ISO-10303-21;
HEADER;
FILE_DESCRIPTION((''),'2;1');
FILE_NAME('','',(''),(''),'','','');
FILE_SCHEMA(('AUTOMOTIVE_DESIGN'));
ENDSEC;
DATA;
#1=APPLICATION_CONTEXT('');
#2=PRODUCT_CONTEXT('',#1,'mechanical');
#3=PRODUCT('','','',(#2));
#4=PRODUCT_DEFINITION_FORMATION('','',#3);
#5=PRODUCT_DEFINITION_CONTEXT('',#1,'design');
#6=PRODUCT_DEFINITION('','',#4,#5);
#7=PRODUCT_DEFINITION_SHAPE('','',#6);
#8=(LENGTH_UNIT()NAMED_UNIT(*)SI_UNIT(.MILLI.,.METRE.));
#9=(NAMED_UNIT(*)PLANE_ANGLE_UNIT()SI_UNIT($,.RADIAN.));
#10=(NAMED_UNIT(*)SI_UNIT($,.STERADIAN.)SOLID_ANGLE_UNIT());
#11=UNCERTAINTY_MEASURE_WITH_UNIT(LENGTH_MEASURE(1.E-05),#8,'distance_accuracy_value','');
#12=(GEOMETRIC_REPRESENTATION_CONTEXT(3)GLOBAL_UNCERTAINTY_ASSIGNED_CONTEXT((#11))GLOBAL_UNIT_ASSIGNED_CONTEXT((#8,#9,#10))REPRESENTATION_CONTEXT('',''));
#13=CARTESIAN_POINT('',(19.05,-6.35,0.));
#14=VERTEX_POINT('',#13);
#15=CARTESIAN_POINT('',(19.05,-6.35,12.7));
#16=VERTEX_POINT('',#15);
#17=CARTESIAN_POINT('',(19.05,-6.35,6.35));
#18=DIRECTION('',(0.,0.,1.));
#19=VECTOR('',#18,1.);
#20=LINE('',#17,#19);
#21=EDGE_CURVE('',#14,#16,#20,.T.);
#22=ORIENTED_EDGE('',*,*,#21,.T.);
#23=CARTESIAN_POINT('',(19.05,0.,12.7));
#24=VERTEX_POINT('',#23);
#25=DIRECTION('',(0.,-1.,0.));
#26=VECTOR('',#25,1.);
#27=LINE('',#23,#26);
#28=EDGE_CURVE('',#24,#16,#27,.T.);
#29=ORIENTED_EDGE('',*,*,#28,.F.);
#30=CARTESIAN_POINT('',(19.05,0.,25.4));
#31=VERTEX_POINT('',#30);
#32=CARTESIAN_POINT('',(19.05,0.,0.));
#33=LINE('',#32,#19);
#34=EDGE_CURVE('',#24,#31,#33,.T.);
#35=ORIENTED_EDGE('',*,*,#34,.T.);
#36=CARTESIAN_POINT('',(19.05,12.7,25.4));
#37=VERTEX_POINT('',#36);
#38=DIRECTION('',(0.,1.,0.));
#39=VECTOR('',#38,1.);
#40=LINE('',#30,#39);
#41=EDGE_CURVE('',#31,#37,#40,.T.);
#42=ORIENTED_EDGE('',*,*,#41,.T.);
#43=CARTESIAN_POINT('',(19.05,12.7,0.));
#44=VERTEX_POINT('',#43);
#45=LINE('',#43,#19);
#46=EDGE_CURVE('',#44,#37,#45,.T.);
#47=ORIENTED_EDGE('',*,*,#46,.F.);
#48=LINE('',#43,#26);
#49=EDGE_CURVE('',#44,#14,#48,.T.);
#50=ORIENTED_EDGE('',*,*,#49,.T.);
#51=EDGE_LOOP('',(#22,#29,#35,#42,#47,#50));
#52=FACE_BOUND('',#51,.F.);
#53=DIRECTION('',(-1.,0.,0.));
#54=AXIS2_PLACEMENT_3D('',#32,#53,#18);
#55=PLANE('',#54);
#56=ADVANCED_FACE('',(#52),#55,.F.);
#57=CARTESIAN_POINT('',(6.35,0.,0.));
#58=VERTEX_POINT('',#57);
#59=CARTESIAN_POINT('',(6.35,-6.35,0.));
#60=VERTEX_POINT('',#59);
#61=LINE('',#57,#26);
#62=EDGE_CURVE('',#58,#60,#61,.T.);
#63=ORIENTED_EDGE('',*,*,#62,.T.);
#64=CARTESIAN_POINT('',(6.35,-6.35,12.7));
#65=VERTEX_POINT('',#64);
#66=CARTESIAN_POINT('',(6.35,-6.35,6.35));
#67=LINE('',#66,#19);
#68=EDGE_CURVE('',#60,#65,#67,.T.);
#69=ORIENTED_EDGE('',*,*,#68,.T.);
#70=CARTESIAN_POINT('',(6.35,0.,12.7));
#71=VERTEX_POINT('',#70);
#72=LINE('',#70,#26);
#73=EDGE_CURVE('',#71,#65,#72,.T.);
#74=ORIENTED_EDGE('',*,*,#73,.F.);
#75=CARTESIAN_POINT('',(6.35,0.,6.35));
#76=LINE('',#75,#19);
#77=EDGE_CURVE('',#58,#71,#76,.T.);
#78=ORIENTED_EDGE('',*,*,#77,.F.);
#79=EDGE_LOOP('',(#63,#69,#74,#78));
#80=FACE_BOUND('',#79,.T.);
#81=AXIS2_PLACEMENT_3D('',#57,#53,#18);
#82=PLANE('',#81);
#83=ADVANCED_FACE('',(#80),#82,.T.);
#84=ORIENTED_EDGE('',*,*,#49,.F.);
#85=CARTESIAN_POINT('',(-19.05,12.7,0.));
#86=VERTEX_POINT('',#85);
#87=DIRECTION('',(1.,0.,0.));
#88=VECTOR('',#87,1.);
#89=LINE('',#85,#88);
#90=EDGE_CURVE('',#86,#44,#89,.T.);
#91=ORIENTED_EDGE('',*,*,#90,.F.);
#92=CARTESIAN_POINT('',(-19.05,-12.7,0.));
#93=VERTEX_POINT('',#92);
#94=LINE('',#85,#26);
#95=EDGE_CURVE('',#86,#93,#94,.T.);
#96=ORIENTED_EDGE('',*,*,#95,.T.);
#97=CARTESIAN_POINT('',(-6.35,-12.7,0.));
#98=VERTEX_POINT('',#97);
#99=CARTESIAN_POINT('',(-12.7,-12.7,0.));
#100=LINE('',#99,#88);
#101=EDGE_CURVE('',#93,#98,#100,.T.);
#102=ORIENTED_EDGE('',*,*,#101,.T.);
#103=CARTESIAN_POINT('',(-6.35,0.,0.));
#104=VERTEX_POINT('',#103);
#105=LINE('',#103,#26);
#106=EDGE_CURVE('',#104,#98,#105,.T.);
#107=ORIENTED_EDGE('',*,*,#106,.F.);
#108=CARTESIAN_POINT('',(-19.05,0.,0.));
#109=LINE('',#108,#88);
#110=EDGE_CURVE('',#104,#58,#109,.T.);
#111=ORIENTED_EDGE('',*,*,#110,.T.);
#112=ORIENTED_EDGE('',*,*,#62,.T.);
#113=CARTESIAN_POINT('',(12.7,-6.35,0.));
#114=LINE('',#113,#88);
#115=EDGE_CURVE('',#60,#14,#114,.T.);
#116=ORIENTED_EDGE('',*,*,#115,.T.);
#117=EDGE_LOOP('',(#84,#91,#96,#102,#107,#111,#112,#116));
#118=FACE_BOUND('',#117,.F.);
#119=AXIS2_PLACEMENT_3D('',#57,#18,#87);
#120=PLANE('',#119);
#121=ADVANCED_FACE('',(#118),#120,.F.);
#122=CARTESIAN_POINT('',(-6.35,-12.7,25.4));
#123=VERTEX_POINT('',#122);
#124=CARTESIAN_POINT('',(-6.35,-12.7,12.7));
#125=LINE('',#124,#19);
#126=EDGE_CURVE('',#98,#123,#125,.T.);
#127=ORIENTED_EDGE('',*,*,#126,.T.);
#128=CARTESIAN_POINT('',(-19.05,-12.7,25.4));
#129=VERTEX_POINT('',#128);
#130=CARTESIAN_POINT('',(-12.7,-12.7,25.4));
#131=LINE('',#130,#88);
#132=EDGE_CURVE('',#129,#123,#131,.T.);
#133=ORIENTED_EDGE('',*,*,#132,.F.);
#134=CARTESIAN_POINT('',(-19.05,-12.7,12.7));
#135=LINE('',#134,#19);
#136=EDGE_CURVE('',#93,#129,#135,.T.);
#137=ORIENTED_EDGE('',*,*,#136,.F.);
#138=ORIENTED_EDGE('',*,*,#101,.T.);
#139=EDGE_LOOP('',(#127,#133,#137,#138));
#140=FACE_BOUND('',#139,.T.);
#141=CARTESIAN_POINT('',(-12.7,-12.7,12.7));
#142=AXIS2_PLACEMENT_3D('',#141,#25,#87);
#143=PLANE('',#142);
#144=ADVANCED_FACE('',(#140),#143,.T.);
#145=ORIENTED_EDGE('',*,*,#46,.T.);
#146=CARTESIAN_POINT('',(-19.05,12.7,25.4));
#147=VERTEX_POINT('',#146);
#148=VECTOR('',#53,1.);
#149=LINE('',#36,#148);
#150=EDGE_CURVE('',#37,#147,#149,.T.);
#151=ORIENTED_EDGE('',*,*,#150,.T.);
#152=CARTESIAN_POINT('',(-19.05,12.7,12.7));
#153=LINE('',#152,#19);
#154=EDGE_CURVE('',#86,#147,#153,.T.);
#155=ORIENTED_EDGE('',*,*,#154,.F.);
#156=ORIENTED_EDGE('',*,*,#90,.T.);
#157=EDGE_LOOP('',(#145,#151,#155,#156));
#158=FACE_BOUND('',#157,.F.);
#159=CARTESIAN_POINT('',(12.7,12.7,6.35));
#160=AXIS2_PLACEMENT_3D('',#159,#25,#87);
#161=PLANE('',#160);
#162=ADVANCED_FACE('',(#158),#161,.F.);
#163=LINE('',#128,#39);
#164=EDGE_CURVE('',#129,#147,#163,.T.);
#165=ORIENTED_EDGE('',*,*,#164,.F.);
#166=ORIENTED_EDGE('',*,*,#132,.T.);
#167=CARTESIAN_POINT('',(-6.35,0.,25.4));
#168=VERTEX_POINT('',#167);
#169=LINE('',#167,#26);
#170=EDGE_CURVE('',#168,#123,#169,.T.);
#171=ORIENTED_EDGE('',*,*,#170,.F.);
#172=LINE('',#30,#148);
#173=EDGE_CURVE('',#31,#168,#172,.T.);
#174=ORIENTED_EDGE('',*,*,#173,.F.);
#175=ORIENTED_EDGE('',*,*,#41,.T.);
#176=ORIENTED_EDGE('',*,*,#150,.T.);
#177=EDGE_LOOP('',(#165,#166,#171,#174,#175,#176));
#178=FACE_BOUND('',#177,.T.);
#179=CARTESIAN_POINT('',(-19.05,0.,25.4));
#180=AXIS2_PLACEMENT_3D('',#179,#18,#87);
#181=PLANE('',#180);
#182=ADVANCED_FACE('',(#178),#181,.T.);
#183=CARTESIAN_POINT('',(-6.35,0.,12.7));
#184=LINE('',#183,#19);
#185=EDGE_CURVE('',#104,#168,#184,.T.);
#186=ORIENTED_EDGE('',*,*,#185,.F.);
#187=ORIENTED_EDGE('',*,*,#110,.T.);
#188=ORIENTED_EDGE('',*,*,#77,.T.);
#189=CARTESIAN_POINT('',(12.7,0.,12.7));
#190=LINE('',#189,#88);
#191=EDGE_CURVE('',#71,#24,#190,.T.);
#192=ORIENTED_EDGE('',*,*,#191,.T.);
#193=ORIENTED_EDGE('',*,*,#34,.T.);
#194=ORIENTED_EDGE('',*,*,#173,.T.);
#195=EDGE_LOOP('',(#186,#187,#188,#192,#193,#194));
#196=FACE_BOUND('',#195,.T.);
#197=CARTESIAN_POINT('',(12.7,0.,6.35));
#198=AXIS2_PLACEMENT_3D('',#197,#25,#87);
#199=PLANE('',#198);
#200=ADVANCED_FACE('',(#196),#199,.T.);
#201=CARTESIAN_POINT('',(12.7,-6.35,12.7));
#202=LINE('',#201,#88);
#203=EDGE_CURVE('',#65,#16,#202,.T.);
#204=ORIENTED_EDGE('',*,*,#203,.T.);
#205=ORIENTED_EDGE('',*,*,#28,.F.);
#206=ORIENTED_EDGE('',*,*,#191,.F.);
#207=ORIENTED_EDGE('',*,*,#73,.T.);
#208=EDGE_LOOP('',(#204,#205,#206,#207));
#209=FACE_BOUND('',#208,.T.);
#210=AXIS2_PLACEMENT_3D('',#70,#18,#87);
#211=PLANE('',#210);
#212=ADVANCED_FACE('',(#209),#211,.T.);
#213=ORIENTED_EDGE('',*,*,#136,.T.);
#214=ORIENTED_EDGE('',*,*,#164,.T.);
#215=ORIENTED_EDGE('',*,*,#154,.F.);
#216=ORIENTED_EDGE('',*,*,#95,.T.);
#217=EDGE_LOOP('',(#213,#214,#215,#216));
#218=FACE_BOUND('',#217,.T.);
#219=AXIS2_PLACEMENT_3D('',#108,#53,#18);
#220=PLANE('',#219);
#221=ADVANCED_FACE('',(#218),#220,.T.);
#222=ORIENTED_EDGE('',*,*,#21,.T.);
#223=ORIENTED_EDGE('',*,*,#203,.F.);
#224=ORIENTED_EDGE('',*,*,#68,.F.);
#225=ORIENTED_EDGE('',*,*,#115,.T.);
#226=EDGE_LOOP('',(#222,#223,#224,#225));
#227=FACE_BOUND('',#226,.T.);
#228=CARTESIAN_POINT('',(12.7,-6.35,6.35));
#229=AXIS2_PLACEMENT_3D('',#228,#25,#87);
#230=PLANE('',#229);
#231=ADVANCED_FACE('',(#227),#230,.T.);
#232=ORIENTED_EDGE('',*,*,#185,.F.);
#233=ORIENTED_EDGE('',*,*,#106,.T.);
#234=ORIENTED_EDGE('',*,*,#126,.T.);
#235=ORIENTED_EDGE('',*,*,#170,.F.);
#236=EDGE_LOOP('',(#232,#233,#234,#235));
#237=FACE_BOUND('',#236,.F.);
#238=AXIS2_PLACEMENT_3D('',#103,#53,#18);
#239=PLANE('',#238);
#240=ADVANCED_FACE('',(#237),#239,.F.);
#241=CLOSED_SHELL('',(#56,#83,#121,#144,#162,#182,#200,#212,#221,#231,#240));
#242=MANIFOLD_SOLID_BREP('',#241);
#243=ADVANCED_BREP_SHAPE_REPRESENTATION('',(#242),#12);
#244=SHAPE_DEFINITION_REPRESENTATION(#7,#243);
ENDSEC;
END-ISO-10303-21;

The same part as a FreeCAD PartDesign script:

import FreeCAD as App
import Part
import Sketcher
Q = App.Units.Quantity


def add_polygon(sketch, points):
    """Adds a closed chain of lines whose ends are joined by coincident constraints."""
    first, n = sketch.GeometryCount, len(points)
    for a, b in zip(points, points[1:] + points[:1]):
        sketch.addGeometry(Part.LineSegment(App.Vector(*a, 0), App.Vector(*b, 0)), False)
    for i in range(n):
        sketch.addConstraint(Sketcher.Constraint("Coincident", first + i, 2, first + (i + 1) % n, 1))

doc = App.newDocument("Part")
params = doc.addObject("Spreadsheet::Sheet", "Params")
for row, (alias, value) in enumerate([
    ("sketch1_height", "1 in"),
    ("sketch1_width", "1.5 in"),
    ("pad1_length", "0.5 in"),
    ("sketch2_height", "1 in"),
    ("sketch2_width", "0.5 in"),
    ("pad2_length", "0.5 in"),
    ("sketch3_width", "0.5 in"),
    ("pad3_length", "0.25 in"),
], start=1):
    params.set(f"A{row}", alias)
    params.set(f"B{row}", "=" + value)
    params.setAlias(f"B{row}", alias)

body = doc.addObject("PartDesign::Body", "Body")

# Sketch on XZ plane
sketch1 = body.newObject("Sketcher::SketchObject", "Sketch")
sketch1.AttachmentSupport = (doc.getObject("XZ_Plane"), [""])
sketch1.MapMode = "FlatFace"
add_polygon(sketch1, [(19, 0), (19, 25), (-19, 25), (-19, 0)])  # lines 0-3
sketch1.addConstraint(Sketcher.Constraint("Vertical", 0))
sketch1.addConstraint(Sketcher.Constraint("Horizontal", 1))
sketch1.addConstraint(Sketcher.Constraint("Vertical", 2))
sketch1.addConstraint(Sketcher.Constraint("Horizontal", 3))
sketch1.addConstraint(Sketcher.Constraint("Symmetric", 2, 2, 3, 2, -1, 1))
sketch1.addConstraint(Sketcher.Constraint("DistanceY", 0, 1, 0, 2, Q("1 in")))
sketch1.addConstraint(Sketcher.Constraint("DistanceX", 1, 2, 1, 1, Q("1.5 in")))
sketch1.setExpression("Constraints[9]", "Params.sketch1_height")
sketch1.setExpression("Constraints[10]", "Params.sketch1_width")
pad1 = body.newObject("PartDesign::Pad", "Pad")
pad1.Profile = sketch1
pad1.setExpression("Length", "Params.pad1_length")
pad1.Reversed = True

# Sketch on XZ plane
sketch2 = body.newObject("Sketcher::SketchObject", "Sketch001")
sketch2.AttachmentSupport = (doc.getObject("XZ_Plane"), [""])
sketch2.MapMode = "FlatFace"
add_polygon(sketch2, [(-19, 25), (-19, 0), (-6, 0), (-6, 25)])  # lines 0-3
sketch2.addConstraint(Sketcher.Constraint("Vertical", 0))
sketch2.addConstraint(Sketcher.Constraint("Horizontal", 1))
sketch2.addConstraint(Sketcher.Constraint("Vertical", 2))
sketch2.addConstraint(Sketcher.Constraint("Horizontal", 3))
sketch2.addConstraint(Sketcher.Constraint("PointOnObject", 0, 2, -1))
sketch2.addConstraint(Sketcher.Constraint("DistanceY", 0, 2, 0, 1, Q("1 in")))
sketch2.addConstraint(Sketcher.Constraint("DistanceX", 1, 1, 1, 2, Q("0.5 in")))
sketch2.addConstraint(Sketcher.Constraint("DistanceX", 0, 2, -1, 1, Q("0.75 in")))
sketch2.setExpression("Constraints[9]", "Params.sketch2_height")
sketch2.setExpression("Constraints[10]", "Params.sketch2_width")
pad2 = body.newObject("PartDesign::Pad", "Pad001")
pad2.Profile = sketch2
pad2.setExpression("Length", "Params.pad2_length")

# Sketch on XZ plane
sketch3 = body.newObject("Sketcher::SketchObject", "Sketch002")
sketch3.AttachmentSupport = (doc.getObject("XZ_Plane"), [""])
sketch3.MapMode = "FlatFace"
add_polygon(sketch3, [(6, 13), (6, 0), (19, 0), (19, 13)])  # lines 0-3
sketch3.addConstraint(Sketcher.Constraint("Vertical", 0))
sketch3.addConstraint(Sketcher.Constraint("Horizontal", 1))
sketch3.addConstraint(Sketcher.Constraint("Vertical", 2))
sketch3.addConstraint(Sketcher.Constraint("Horizontal", 3))
sketch3.addConstraint(Sketcher.Constraint("PointOnObject", 0, 2, -1))
sketch3.addConstraint(Sketcher.Constraint("Equal", 3, 0))
sketch3.addConstraint(Sketcher.Constraint("DistanceX", 1, 1, 1, 2, Q("0.5 in")))
sketch3.addConstraint(Sketcher.Constraint("DistanceX", -1, 1, 0, 2, Q("0.25 in")))
sketch3.setExpression("Constraints[10]", "Params.sketch3_width")
pad3 = body.newObject("PartDesign::Pad", "Pad002")
pad3.Profile = sketch3
pad3.setExpression("Length", "Params.pad3_length")

doc.recompute()
